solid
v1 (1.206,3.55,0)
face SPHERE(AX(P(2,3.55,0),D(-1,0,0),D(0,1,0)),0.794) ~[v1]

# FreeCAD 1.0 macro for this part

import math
import FreeCAD as App
import Part
import Sketcher

V = App.Vector
Q = App.Units.Quantity

doc = App.newDocument("Part")
body = doc.addObject("PartDesign::Body", "Body")

sketch1 = doc.addObject("Sketcher::SketchObject", "Sketch")
body.addObject(sketch1)
sketch1.AttachmentSupport = (doc.XY_Plane, [""])
sketch1.MapMode = "FlatFace"
sketch1.addGeometry([
    Part.LineSegment(V(1.206, 3.55, 0), V(2.794, 3.55, 0)),
    Part.ArcOfCircle(Part.Circle(V(2, 3.55, 0), V(0, 0, 1), 0.794), math.radians(0), math.radians(180)),
], False)
sketch1.addGeometry(Part.LineSegment(V(1.206, 3.55, 0), V(2.794, 3.55, 0)), True)
sketch1.addConstraint([
    Sketcher.Constraint("Coincident", 0, 1, 1, 2),
    Sketcher.Constraint("Coincident", 1, 1, 0, 2),
    Sketcher.Constraint("Horizontal", 0),
    Sketcher.Constraint("Horizontal", 2),
    Sketcher.Constraint("Coincident", 2, 1, 0, 1),
    Sketcher.Constraint("Horizontal", 1, 3, 0, 1),
    Sketcher.Constraint("Equal", 0, 2),
    Sketcher.Constraint("DistanceX", -1, 1, 1, 3, Q("2 mm")),
    Sketcher.Constraint("Radius", 1, Q("0.794 mm")),
    Sketcher.Constraint("DistanceY", -1, 1, 1, 3, Q("3.55 mm")),
])
revolution = doc.addObject("PartDesign::Revolution", "Revolution")
body.addObject(revolution)
revolution.Profile = sketch1
revolution.ReferenceAxis = (sketch1, ["Axis0"])
revolution.Angle = 360

doc.recompute()
